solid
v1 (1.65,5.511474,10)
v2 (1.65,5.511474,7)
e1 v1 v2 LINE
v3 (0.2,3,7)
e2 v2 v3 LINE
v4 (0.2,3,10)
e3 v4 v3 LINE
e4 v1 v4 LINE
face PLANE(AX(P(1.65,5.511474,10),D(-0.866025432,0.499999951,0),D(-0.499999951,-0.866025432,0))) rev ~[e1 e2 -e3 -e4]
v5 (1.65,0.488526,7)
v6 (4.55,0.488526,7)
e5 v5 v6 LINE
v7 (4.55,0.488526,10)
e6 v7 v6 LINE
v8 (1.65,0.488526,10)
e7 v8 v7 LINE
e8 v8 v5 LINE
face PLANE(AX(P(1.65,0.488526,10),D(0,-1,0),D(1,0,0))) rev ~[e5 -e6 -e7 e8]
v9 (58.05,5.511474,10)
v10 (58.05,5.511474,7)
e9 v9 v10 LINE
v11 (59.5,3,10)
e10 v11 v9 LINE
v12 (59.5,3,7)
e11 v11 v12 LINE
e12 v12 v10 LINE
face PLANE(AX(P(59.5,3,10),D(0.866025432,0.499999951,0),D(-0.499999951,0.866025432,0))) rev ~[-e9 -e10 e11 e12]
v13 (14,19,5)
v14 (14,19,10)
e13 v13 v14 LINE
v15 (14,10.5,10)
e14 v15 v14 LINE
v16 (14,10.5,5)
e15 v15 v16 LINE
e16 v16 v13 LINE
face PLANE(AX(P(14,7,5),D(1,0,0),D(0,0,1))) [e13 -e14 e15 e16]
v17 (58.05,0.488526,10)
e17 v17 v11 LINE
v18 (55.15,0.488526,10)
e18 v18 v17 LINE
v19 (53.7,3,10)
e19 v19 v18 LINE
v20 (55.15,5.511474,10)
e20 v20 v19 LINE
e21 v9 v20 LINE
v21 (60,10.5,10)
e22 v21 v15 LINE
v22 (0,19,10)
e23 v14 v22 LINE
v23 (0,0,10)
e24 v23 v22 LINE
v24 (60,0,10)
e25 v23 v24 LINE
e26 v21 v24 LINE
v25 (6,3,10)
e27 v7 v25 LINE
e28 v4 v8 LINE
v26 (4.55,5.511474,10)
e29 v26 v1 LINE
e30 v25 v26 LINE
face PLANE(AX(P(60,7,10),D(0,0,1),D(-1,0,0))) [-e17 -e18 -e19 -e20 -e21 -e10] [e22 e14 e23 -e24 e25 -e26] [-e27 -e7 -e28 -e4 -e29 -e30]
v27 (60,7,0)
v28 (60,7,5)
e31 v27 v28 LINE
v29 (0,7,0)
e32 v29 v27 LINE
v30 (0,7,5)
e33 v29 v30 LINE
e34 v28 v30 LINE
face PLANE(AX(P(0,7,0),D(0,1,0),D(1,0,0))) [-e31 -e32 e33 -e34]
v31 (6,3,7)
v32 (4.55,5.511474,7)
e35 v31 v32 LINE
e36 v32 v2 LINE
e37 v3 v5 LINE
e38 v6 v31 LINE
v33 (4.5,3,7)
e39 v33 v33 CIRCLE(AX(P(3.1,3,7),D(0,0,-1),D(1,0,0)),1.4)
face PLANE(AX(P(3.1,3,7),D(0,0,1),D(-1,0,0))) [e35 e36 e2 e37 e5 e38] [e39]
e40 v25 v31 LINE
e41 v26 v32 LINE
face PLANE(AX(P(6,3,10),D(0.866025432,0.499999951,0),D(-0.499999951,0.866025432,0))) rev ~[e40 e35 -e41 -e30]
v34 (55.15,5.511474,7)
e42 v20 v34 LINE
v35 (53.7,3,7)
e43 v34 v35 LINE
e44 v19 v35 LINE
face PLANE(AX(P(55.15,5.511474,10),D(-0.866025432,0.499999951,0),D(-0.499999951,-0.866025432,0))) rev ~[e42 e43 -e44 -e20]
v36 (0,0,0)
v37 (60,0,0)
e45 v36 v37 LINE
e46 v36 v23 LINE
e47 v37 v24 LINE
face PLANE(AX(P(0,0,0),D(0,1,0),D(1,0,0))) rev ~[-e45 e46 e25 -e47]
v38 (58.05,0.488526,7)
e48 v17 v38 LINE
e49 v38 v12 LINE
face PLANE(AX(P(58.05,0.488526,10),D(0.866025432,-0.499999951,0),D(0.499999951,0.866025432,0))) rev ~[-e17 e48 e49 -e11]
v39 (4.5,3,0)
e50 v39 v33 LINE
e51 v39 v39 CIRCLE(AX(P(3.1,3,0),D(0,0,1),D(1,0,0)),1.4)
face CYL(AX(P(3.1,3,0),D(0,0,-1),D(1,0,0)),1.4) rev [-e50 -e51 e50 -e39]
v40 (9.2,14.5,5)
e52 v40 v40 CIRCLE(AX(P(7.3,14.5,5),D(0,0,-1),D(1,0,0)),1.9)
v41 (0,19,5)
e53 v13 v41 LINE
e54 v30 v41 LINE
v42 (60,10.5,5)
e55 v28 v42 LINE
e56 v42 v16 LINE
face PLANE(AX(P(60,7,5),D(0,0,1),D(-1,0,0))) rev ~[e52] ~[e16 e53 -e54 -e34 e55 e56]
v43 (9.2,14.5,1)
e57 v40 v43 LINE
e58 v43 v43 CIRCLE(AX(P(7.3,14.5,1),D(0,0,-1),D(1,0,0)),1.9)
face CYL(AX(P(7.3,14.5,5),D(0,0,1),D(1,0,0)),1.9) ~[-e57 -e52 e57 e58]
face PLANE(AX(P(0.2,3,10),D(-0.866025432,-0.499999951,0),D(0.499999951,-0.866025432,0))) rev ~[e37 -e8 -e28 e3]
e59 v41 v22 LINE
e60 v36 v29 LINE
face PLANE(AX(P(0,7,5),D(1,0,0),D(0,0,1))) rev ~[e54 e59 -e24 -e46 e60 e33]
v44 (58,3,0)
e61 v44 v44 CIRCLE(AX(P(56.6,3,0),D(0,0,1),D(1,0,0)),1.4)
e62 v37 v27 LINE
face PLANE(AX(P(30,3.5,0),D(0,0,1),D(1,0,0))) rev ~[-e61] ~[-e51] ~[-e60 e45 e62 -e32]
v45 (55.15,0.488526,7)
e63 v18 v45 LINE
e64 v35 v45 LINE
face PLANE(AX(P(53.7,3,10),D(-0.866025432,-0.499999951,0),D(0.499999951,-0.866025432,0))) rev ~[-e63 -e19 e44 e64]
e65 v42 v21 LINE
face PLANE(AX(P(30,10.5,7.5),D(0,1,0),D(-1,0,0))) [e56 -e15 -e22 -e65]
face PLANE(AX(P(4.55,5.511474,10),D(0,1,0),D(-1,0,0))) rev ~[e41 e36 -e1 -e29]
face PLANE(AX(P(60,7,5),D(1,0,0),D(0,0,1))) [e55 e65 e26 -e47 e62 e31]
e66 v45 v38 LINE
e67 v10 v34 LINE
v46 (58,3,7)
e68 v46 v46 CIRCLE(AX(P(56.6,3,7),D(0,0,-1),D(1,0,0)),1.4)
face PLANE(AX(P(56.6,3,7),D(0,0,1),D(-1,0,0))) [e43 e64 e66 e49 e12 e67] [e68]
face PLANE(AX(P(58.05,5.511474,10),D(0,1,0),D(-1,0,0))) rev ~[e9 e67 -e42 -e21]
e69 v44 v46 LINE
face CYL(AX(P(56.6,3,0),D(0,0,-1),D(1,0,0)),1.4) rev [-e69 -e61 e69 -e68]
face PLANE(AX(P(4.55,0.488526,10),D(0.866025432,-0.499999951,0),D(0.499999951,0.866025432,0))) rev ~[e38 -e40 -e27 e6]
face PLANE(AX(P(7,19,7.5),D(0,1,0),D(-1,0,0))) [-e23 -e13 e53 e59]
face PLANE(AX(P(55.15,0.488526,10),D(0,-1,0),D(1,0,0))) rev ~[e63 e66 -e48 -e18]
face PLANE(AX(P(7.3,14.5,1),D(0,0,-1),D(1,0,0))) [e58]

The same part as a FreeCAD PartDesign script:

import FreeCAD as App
import Part
import Sketcher
Q = App.Units.Quantity


def add_polygon(sketch, points):
    """Adds a closed chain of lines whose ends are joined by coincident constraints."""
    first, n = sketch.GeometryCount, len(points)
    for a, b in zip(points, points[1:] + points[:1]):
        sketch.addGeometry(Part.LineSegment(App.Vector(*a, 0), App.Vector(*b, 0)), False)
    for i in range(n):
        sketch.addConstraint(Sketcher.Constraint("Coincident", first + i, 2, first + (i + 1) % n, 1))

doc = App.newDocument("Part")
params = doc.addObject("Spreadsheet::Sheet", "Params")
for row, (alias, value) in enumerate([
    ("sketch1_width", "2.9 mm"),
    ("sketch1_length", "2.9 mm"),
    ("pad1_length", "3 mm"),
    ("sketch2_width", "2.9 mm"),
    ("sketch2_length", "2.9 mm"),
    ("pad2_length", "3 mm"),
    ("sketch3_diameter", "2.8 mm"),
    ("sketch3_width", "60 mm"),
    ("sketch3_height", "7 mm"),
    ("pad3_length", "10 mm"),
    ("sketch4_width", "60 mm"),
    ("sketch4_height", "5 mm"),
    ("pad4_length", "3.5 mm"),
    ("sketch5_width", "14 mm"),
    ("sketch5_height", "5 mm"),
    ("pad5_length", "12 mm"),
    ("sketch6_diameter", "3.8 mm"),
    ("pad6_length", "4 mm"),
], start=1):
    params.set(f"A{row}", alias)
    params.set(f"B{row}", "=" + value)
    params.setAlias(f"B{row}", alias)

body = doc.addObject("PartDesign::Body", "Body")

sketch1 = body.newObject("Sketcher::SketchObject", "Sketch")
sketch1.AttachmentSupport = (doc.getObject("XY_Plane"), [""])
sketch1.MapMode = "FlatFace"
sketch1.AttachmentOffset = App.Placement(App.Vector(0, 0, 10), App.Rotation())
add_polygon(sketch1, [(59.5, 3), (58.05, 0.488526), (55.15, 0.488526), (53.7, 3), (55.15, 5.511474), (58.05, 5.511474)])
sketch1.addConstraint(Sketcher.Constraint("Horizontal", 1))
sketch1.addConstraint(Sketcher.Constraint("Horizontal", 4))
sketch1.addConstraint(Sketcher.Constraint("Parallel", 0, 3))
sketch1.addConstraint(Sketcher.Constraint("Parallel", 2, 5))
sketch1.addConstraint(Sketcher.Constraint("Horizontal", 2, 2, 5, 2))
sketch1.addConstraint(Sketcher.Constraint("Vertical", 1, 2, 3, 2))
sketch1.addConstraint(Sketcher.Constraint("Vertical", 0, 2, 4, 2))
sketch1.addConstraint(Sketcher.Constraint("Angle", 0, Q("-119.999997 deg")))
sketch1.addConstraint(Sketcher.Constraint("DistanceX", 1, 2, 1, 1, 2.9))
sketch1.addConstraint(Sketcher.Constraint("DistanceY", -1, 1, 2, 2, 3.0))
sketch1.addConstraint(Sketcher.Constraint("Distance", 0, 2.9))
sketch1.addConstraint(Sketcher.Constraint("DistanceX", -1, 1, 2, 2, 53.7))
sketch1.setExpression("Constraints[14]", "Params.sketch1_width")
sketch1.setExpression("Constraints[16]", "Params.sketch1_length")
pad1 = body.newObject("PartDesign::Pad", "Pad")
pad1.Profile = sketch1
pad1.setExpression("Length", "Params.pad1_length")
pad1.Reversed = True
body2 = doc.addObject("PartDesign::Body", "Body001")

sketch2 = body2.newObject("Sketcher::SketchObject", "Sketch001")
sketch2.AttachmentSupport = (doc.getObject("XY_Plane001"), [""])
sketch2.MapMode = "FlatFace"
sketch2.AttachmentOffset = App.Placement(App.Vector(0, 0, 10), App.Rotation())
add_polygon(sketch2, [(6, 3), (4.55, 0.488526), (1.65, 0.488526), (0.2, 3), (1.65, 5.511474), (4.55, 5.511474)])
sketch2.addConstraint(Sketcher.Constraint("Horizontal", 1))
sketch2.addConstraint(Sketcher.Constraint("Horizontal", 4))
sketch2.addConstraint(Sketcher.Constraint("Parallel", 0, 3))
sketch2.addConstraint(Sketcher.Constraint("Parallel", 2, 5))
sketch2.addConstraint(Sketcher.Constraint("Horizontal", 2, 2, 5, 2))
sketch2.addConstraint(Sketcher.Constraint("Vertical", 1, 2, 3, 2))
sketch2.addConstraint(Sketcher.Constraint("Vertical", 0, 2, 4, 2))
sketch2.addConstraint(Sketcher.Constraint("Angle", 0, Q("-119.999997 deg")))
sketch2.addConstraint(Sketcher.Constraint("DistanceX", 1, 2, 1, 1, 2.9))
sketch2.addConstraint(Sketcher.Constraint("DistanceY", -1, 1, 2, 2, 3.0))
sketch2.addConstraint(Sketcher.Constraint("DistanceX", -1, 1, 5, 2, 6.0))
sketch2.addConstraint(Sketcher.Constraint("Distance", 0, 2.9))
sketch2.setExpression("Constraints[14]", "Params.sketch2_width")
sketch2.setExpression("Constraints[17]", "Params.sketch2_length")
pad2 = body2.newObject("PartDesign::Pad", "Pad001")
pad2.Profile = sketch2
pad2.setExpression("Length", "Params.pad2_length")
pad2.Reversed = True
body3 = doc.addObject("PartDesign::Body", "Body002")

sketch3 = body3.newObject("Sketcher::SketchObject", "Sketch002")
sketch3.AttachmentSupport = (doc.getObject("XY_Plane002"), [""])
sketch3.MapMode = "FlatFace"
add_polygon(sketch3, [(0, 7), (0, 0), (60, 0), (60, 7)])
sketch3.addGeometry(Part.Circle(App.Vector(3.1, 3, 0), App.Vector(0, 0, 1), 1.4), False)
sketch3.addGeometry(Part.Circle(App.Vector(56.6, 3, 0), App.Vector(0, 0, 1), 1.4), False)
sketch3.addConstraint(Sketcher.Constraint("Vertical", 0))
sketch3.addConstraint(Sketcher.Constraint("Horizontal", 1))
sketch3.addConstraint(Sketcher.Constraint("Vertical", 2))
sketch3.addConstraint(Sketcher.Constraint("Horizontal", 3))
sketch3.addConstraint(Sketcher.Constraint("Coincident", 0, 2, -1, 1))
sketch3.addConstraint(Sketcher.Constraint("Equal", 4, 5))
sketch3.addConstraint(Sketcher.Constraint("Horizontal", 4, 3, 5, 3))
sketch3.addConstraint(Sketcher.Constraint("Diameter", 4, 2.8))
sketch3.addConstraint(Sketcher.Constraint("DistanceX", 1, 1, 1, 2, 60.0))
sketch3.addConstraint(Sketcher.Constraint("DistanceY", 0, 2, 0, 1, 7.0))
sketch3.addConstraint(Sketcher.Constraint("DistanceY", -1, 1, 4, 3, 3.0))
sketch3.addConstraint(Sketcher.Constraint("DistanceX", -1, 1, 4, 3, 3.1))
sketch3.addConstraint(Sketcher.Constraint("DistanceX", -1, 1, 5, 3, 56.6))
sketch3.setExpression("Constraints[11]", "Params.sketch3_diameter")
sketch3.setExpression("Constraints[12]", "Params.sketch3_width")
sketch3.setExpression("Constraints[13]", "Params.sketch3_height")
pad3 = body3.newObject("PartDesign::Pad", "Pad002")
pad3.Profile = sketch3
pad3.setExpression("Length", "Params.pad3_length")

sketch4 = body3.newObject("Sketcher::SketchObject", "Sketch003")
sketch4.AttachmentSupport = (doc.getObject("XZ_Plane002"), [""])
sketch4.MapMode = "FlatFace"
sketch4.AttachmentOffset = App.Placement(App.Vector(0, 0, -7), App.Rotation())
add_polygon(sketch4, [(60, 10), (60, 5), (0, 5), (0, 10)])
sketch4.addConstraint(Sketcher.Constraint("Vertical", 0))
sketch4.addConstraint(Sketcher.Constraint("Horizontal", 1))
sketch4.addConstraint(Sketcher.Constraint("Vertical", 2))
sketch4.addConstraint(Sketcher.Constraint("Horizontal", 3))
sketch4.addConstraint(Sketcher.Constraint("PointOnObject", 1, 2, -2))
sketch4.addConstraint(Sketcher.Constraint("DistanceX", 1, 2, 1, 1, 60.0))
sketch4.addConstraint(Sketcher.Constraint("DistanceY", 0, 2, 0, 1, 5.0))
sketch4.addConstraint(Sketcher.Constraint("DistanceY", -1, 1, 0, 2, 5.0))
sketch4.setExpression("Constraints[9]", "Params.sketch4_width")
sketch4.setExpression("Constraints[10]", "Params.sketch4_height")
pad4 = body3.newObject("PartDesign::Pad", "Pad003")
pad4.Profile = sketch4
pad4.setExpression("Length", "Params.pad4_length")
pad4.Reversed = True

sketch5 = body3.newObject("Sketcher::SketchObject", "Sketch004")
sketch5.AttachmentSupport = (doc.getObject("XZ_Plane002"), [""])
sketch5.MapMode = "FlatFace"
sketch5.AttachmentOffset = App.Placement(App.Vector(0, 0, -7), App.Rotation())
add_polygon(sketch5, [(14, 10), (14, 5), (0, 5), (0, 10)])
sketch5.addConstraint(Sketcher.Constraint("Vertical", 0))
sketch5.addConstraint(Sketcher.Constraint("Horizontal", 1))
sketch5.addConstraint(Sketcher.Constraint("Vertical", 2))
sketch5.addConstraint(Sketcher.Constraint("Horizontal", 3))
sketch5.addConstraint(Sketcher.Constraint("PointOnObject", 1, 2, -2))
sketch5.addConstraint(Sketcher.Constraint("DistanceX", 1, 2, 1, 1, 14.0))
sketch5.addConstraint(Sketcher.Constraint("DistanceY", 0, 2, 0, 1, 5.0))
sketch5.addConstraint(Sketcher.Constraint("DistanceY", -1, 1, 0, 2, 5.0))
sketch5.setExpression("Constraints[9]", "Params.sketch5_width")
sketch5.setExpression("Constraints[10]", "Params.sketch5_height")
pad5 = body3.newObject("PartDesign::Pad", "Pad004")
pad5.Profile = sketch5
pad5.setExpression("Length", "Params.pad5_length")
pad5.Reversed = True

sketch6 = body3.newObject("Sketcher::SketchObject", "Sketch005")
sketch6.AttachmentSupport = (doc.getObject("XY_Plane002"), [""])
sketch6.MapMode = "FlatFace"
sketch6.AttachmentOffset = App.Placement(App.Vector(0, 0, 5), App.Rotation())
sketch6.addGeometry(Part.Circle(App.Vector(7.3, 14.5, 0), App.Vector(0, 0, 1), 1.9), False)
sketch6.addConstraint(Sketcher.Constraint("Diameter", 0, 3.8))
sketch6.addConstraint(Sketcher.Constraint("DistanceX", -1, 1, 0, 3, 7.3))
sketch6.addConstraint(Sketcher.Constraint("DistanceY", -1, 1, 0, 3, 14.5))
sketch6.setExpression("Constraints[0]", "Params.sketch6_diameter")
pad6 = body3.newObject("PartDesign::Pad", "Pad005")
pad6.Profile = sketch6
pad6.setExpression("Length", "Params.pad6_length")
pad6.Reversed = True
doc.recompute()

boolean = body3.newObject("PartDesign::Boolean", "Boolean")
boolean.Type = "Cut"
boolean.addObjects([body2])
doc.recompute()

boolean2 = body3.newObject("PartDesign::Boolean", "Boolean001")
boolean2.Type = "Cut"
boolean2.addObjects([body])

doc.recompute()
